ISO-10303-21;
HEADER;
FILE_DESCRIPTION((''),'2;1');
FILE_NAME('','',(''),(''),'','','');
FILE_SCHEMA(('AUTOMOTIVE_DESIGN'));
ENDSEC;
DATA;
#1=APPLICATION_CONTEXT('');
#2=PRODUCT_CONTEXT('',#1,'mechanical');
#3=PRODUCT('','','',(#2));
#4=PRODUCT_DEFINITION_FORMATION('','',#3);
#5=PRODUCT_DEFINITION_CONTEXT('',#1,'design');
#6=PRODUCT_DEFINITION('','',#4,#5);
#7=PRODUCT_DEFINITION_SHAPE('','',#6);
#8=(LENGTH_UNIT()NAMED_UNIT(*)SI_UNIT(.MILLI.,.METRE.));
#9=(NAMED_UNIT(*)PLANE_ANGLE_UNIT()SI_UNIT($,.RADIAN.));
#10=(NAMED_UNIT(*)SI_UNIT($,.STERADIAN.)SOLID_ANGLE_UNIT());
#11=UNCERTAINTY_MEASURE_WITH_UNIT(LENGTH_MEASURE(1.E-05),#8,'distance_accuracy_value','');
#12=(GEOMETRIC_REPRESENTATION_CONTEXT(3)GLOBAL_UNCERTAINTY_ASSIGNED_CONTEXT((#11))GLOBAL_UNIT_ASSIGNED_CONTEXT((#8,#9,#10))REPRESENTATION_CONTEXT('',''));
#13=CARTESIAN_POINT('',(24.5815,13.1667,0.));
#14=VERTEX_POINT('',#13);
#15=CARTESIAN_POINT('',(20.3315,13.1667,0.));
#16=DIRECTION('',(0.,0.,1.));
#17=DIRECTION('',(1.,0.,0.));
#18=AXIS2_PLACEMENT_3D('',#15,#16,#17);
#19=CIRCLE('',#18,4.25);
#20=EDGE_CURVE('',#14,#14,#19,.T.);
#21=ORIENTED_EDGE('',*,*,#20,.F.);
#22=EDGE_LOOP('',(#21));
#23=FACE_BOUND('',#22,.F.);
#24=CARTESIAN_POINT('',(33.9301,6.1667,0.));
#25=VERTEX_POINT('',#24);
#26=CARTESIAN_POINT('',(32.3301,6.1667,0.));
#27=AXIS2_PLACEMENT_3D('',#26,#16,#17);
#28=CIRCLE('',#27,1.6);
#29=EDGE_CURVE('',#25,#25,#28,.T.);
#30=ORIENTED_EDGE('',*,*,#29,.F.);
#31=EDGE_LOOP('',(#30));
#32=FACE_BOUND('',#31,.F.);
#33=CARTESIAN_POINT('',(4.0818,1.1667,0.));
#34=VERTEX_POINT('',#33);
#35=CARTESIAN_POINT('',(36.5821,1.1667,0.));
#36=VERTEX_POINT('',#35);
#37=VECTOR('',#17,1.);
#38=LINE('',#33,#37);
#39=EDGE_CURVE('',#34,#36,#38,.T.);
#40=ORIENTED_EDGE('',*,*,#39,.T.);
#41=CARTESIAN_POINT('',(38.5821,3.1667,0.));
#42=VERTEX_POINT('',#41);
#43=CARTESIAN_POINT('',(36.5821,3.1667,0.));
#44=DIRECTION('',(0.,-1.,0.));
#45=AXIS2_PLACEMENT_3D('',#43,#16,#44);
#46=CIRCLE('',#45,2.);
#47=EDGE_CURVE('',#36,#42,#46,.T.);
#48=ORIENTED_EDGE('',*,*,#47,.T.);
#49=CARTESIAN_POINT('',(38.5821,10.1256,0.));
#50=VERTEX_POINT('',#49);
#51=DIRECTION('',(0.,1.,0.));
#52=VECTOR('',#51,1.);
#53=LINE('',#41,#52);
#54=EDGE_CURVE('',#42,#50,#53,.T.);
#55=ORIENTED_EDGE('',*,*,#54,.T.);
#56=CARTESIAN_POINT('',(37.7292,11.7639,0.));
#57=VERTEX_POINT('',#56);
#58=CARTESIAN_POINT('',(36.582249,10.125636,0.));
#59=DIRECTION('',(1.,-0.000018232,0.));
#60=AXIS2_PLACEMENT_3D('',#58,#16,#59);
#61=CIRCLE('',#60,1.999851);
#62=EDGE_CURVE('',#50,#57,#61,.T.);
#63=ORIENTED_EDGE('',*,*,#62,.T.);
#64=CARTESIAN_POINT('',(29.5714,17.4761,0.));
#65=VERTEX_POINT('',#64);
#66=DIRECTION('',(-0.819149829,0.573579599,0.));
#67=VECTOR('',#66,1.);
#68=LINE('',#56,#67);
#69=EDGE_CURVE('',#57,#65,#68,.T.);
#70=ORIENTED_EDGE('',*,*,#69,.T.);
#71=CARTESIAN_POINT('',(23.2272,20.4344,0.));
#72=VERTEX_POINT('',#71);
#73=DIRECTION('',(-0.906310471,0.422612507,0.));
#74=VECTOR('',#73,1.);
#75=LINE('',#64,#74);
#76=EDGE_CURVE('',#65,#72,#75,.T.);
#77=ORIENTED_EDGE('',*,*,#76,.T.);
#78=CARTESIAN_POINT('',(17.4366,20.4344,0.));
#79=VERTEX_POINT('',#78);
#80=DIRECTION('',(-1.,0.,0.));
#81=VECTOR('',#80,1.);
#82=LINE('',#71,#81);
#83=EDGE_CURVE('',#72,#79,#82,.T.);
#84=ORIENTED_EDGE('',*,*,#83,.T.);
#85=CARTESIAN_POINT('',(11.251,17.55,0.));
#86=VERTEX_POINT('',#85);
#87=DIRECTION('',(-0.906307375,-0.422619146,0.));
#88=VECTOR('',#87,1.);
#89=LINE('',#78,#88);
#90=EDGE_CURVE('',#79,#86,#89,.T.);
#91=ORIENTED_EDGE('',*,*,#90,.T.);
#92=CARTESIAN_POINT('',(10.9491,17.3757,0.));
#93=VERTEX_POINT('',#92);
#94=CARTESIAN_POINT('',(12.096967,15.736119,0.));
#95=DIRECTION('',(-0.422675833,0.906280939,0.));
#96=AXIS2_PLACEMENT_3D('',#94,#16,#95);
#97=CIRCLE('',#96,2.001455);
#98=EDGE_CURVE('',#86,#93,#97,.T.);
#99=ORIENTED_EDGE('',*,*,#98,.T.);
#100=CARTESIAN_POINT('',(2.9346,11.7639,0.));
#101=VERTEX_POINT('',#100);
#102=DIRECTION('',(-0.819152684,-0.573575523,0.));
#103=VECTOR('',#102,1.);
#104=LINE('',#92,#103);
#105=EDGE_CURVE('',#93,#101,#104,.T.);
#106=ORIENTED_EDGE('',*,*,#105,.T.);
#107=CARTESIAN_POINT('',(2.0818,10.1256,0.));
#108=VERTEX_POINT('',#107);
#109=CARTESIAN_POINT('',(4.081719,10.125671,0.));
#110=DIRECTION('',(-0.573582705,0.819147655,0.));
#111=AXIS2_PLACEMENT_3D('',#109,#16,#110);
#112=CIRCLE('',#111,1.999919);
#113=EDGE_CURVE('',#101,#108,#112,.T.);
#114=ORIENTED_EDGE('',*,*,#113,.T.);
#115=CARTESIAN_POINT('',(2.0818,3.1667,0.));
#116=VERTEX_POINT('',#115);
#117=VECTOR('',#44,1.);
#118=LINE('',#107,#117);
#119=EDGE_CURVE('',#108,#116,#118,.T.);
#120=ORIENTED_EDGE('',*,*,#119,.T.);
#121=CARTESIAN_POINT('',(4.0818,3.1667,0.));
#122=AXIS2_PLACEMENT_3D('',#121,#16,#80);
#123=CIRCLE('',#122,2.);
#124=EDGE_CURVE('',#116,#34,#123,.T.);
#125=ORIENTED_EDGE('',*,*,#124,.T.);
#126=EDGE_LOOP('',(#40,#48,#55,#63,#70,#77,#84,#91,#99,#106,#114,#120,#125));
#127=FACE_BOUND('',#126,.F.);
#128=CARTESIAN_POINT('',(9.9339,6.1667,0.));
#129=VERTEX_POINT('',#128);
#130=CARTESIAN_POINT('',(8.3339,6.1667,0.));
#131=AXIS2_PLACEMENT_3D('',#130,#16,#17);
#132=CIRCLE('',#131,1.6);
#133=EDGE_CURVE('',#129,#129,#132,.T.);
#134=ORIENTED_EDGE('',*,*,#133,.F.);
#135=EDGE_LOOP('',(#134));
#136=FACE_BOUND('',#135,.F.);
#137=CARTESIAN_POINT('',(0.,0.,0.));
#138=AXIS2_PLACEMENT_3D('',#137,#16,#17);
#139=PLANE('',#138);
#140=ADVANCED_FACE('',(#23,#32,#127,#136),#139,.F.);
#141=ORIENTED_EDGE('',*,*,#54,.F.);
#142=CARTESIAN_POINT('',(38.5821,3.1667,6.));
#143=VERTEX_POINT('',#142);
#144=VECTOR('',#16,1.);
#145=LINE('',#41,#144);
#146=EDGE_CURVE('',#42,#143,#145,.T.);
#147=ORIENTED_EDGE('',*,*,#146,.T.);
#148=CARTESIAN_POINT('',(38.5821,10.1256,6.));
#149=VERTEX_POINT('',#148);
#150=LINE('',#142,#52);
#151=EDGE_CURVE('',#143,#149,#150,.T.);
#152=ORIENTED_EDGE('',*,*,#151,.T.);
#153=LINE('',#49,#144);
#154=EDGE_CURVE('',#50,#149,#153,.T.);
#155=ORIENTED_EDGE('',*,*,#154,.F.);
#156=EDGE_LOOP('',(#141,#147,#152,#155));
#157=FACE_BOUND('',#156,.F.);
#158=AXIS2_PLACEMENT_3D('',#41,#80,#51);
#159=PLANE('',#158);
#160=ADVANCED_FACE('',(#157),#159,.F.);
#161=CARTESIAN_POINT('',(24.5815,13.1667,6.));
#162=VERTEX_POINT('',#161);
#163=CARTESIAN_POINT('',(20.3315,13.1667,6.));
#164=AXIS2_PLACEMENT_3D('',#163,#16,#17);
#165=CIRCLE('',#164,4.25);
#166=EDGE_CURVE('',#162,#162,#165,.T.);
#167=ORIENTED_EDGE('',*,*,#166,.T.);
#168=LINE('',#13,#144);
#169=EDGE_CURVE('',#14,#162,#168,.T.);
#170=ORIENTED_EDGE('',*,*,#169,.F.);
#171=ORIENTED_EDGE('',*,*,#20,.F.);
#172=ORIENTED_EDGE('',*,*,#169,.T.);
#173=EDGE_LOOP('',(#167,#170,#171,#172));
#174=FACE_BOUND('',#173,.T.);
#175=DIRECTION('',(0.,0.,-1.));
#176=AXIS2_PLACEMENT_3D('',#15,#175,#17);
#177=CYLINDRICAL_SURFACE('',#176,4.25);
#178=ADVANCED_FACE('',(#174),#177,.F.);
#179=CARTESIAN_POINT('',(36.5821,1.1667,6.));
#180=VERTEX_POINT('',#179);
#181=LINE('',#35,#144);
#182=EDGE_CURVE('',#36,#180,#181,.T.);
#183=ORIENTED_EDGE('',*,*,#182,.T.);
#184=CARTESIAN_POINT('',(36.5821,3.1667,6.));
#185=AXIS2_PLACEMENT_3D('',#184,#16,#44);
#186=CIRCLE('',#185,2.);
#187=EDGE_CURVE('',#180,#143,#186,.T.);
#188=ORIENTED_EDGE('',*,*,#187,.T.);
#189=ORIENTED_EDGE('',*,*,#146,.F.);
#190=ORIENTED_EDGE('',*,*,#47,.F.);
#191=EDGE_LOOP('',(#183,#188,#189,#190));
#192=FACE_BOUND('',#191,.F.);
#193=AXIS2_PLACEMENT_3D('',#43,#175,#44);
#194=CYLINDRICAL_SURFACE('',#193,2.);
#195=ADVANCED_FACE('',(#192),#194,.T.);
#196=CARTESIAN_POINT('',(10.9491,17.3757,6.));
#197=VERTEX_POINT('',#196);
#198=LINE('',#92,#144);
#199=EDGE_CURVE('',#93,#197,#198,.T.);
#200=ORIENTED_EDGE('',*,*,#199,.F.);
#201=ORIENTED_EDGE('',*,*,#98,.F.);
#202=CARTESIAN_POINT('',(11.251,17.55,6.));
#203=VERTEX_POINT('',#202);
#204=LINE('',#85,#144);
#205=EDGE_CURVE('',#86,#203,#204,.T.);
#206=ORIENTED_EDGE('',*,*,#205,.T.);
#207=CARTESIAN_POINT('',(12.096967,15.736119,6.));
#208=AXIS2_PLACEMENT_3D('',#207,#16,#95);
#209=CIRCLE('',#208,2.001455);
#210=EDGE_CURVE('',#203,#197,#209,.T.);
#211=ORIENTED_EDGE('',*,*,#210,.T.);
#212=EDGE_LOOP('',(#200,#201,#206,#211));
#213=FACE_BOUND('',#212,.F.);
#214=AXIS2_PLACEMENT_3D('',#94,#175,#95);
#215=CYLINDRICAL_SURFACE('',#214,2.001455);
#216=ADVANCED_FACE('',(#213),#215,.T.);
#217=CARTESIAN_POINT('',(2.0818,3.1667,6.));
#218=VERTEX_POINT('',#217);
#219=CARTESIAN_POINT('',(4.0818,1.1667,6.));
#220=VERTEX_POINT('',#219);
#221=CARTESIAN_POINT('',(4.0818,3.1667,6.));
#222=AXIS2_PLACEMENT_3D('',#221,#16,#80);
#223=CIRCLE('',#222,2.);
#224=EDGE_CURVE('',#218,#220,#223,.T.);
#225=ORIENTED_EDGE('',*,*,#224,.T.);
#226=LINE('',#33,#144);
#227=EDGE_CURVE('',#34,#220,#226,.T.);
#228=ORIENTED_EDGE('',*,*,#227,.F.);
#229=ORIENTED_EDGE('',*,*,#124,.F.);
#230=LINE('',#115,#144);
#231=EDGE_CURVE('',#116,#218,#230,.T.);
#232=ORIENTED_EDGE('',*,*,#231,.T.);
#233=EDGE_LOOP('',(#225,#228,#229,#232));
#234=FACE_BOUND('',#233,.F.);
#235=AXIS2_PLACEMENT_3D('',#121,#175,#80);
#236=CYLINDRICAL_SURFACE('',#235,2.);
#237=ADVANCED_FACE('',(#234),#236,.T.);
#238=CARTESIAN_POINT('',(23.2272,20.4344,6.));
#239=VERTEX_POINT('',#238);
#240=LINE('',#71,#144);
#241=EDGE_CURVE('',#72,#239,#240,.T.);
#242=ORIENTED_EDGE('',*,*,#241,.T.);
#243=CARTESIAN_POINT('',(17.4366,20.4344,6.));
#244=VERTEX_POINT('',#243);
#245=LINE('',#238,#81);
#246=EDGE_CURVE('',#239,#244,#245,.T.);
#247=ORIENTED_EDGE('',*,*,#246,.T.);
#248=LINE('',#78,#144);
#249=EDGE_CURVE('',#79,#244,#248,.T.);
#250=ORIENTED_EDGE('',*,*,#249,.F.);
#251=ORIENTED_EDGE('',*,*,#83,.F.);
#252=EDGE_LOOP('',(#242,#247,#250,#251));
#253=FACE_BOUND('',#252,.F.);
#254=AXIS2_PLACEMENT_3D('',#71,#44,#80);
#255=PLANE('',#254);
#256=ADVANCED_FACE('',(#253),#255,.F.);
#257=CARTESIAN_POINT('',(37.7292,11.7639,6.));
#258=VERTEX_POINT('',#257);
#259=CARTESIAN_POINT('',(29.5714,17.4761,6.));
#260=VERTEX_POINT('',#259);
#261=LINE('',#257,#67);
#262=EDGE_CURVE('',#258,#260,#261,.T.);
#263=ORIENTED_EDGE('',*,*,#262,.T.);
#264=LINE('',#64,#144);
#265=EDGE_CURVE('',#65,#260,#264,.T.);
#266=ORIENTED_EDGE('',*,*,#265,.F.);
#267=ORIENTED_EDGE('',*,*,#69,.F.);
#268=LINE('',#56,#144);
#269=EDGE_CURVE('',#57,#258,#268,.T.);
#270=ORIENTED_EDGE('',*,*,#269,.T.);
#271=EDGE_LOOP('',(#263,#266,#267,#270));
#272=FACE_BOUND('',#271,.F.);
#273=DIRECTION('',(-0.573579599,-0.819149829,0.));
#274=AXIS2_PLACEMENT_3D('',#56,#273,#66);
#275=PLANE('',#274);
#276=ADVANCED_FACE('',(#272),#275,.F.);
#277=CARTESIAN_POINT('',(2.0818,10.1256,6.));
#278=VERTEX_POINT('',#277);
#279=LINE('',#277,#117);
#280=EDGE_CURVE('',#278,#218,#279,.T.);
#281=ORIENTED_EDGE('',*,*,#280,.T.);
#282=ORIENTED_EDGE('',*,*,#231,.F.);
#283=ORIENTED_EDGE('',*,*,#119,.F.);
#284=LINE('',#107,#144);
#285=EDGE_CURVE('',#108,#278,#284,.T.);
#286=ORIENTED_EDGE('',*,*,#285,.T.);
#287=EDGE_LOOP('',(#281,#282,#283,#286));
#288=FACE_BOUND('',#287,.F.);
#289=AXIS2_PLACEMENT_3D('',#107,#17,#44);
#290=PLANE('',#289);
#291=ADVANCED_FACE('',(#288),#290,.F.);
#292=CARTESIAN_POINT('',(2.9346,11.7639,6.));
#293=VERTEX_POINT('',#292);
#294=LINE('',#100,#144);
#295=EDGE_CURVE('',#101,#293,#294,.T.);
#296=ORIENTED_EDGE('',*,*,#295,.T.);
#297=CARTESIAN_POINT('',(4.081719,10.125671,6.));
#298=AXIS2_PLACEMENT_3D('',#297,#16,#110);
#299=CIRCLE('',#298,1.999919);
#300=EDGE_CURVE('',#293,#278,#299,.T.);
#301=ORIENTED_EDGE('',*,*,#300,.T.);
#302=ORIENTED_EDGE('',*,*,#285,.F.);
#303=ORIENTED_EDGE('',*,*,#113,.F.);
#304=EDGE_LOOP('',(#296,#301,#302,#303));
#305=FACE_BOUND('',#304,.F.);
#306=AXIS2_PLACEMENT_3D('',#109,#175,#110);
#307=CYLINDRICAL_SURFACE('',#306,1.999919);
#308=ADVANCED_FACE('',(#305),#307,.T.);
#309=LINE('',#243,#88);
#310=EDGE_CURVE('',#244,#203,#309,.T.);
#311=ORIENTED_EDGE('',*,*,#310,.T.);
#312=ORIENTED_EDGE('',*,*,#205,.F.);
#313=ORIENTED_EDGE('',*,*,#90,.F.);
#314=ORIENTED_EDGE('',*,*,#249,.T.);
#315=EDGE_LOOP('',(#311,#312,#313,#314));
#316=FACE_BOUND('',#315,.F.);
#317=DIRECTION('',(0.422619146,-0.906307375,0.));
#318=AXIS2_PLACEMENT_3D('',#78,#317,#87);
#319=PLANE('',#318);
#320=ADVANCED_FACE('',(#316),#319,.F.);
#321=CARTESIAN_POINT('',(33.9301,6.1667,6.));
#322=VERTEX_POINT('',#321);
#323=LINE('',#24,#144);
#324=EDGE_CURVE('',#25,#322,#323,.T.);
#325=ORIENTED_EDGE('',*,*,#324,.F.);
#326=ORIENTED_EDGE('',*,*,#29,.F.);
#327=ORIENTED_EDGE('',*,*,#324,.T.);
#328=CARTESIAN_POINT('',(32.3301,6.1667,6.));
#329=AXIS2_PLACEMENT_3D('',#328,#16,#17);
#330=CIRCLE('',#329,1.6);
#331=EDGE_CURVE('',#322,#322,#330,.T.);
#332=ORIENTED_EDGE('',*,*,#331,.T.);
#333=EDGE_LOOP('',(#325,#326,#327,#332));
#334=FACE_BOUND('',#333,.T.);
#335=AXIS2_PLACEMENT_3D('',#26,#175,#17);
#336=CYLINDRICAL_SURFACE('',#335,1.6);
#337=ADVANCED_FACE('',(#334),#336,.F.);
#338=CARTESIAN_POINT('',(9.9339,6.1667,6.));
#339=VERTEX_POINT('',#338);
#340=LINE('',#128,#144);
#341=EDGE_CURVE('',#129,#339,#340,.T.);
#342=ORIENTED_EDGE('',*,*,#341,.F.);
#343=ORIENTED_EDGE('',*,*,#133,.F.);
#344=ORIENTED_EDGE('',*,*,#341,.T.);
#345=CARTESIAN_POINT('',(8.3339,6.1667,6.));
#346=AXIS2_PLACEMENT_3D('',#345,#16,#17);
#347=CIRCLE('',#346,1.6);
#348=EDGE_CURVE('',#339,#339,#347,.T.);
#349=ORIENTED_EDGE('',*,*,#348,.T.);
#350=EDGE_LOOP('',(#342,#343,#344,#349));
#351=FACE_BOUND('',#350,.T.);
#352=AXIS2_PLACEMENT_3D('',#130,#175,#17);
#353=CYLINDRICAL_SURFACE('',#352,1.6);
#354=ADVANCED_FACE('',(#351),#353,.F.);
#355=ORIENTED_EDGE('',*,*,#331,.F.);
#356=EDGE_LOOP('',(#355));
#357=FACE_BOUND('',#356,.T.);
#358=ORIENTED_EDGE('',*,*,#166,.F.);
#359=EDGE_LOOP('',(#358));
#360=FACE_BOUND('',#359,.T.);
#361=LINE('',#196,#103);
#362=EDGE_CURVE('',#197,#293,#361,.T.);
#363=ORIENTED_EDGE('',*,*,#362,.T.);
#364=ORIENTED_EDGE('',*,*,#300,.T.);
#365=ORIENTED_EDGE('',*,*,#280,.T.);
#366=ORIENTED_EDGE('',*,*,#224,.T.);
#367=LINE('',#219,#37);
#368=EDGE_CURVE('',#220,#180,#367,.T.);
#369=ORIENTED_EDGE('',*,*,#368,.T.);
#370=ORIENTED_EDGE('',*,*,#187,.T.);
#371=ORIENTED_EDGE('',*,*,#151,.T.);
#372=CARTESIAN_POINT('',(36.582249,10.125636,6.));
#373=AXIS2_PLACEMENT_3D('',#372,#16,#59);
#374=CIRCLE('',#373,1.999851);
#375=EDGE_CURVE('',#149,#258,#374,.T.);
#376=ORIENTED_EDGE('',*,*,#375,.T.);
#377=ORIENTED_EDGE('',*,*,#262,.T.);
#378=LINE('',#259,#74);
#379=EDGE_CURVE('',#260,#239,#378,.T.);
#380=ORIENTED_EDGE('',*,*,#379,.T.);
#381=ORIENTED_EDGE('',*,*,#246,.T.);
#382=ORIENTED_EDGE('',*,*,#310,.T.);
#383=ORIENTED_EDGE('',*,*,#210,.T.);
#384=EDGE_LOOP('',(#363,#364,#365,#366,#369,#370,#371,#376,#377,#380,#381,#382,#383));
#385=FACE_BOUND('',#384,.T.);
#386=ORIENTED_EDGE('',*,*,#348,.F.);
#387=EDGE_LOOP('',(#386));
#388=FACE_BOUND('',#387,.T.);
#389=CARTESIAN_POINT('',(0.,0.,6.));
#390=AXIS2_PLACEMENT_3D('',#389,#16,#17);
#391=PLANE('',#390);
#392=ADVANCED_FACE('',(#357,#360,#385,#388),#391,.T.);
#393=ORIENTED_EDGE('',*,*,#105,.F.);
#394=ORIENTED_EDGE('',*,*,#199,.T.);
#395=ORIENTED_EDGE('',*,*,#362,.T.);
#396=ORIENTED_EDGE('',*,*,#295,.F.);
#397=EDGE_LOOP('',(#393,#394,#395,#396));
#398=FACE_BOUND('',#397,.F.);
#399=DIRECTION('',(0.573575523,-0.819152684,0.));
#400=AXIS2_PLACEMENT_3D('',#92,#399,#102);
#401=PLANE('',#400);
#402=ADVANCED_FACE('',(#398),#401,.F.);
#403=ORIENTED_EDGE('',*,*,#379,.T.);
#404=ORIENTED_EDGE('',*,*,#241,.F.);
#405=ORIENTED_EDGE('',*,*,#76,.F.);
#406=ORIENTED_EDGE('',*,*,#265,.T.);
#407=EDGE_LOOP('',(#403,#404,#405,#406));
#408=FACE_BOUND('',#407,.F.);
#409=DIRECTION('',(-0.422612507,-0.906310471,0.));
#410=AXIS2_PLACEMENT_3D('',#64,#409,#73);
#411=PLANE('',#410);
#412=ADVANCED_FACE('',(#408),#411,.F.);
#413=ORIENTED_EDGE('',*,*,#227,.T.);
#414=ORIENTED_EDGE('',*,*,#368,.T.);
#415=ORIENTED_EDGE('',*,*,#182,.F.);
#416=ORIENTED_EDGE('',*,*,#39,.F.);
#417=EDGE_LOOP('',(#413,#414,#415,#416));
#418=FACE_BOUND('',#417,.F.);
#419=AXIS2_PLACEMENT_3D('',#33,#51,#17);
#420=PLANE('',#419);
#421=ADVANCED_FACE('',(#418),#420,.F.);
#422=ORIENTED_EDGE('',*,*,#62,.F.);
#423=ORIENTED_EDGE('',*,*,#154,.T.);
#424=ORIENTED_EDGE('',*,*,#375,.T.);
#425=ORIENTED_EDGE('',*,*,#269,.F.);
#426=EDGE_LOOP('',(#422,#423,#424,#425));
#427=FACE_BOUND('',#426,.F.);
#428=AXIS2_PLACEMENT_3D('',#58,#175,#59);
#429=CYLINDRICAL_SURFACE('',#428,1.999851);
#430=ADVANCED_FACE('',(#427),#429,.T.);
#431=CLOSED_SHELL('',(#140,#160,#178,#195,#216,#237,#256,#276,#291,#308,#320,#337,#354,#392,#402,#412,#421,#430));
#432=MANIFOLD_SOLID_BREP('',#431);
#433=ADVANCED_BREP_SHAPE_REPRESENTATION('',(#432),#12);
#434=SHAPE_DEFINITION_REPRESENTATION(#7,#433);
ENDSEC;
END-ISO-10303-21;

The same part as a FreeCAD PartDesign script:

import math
import FreeCAD as App
import Part
import Sketcher
from FreeCAD import Vector
Q = App.Units.Quantity

doc = App.newDocument("Part")
params = doc.addObject("Spreadsheet::Sheet", "Params")
for row, (alias, value) in enumerate([
    ("sketch1_radius", "2 mm"),
    ("sketch1_diameter", "3.2 mm"),
    ("sketch1_diameter2", "8.5 mm"),
    ("sketch1_length", "7 mm"),
    ("pad1_length", "6 mm"),
], start=1):
    params.set(f"A{row}", alias)
    params.set(f"B{row}", "=" + value)
    params.setAlias(f"B{row}", alias)

body = doc.addObject("PartDesign::Body", "Body")

# Sketch on XY plane
sketch1 = body.newObject("Sketcher::SketchObject", "Sketch")
sketch1.AttachmentSupport = (doc.getObject("XY_Plane"), [""])
sketch1.MapMode = "FlatFace"
sketch1.addGeometry([
    Part.ArcOfCircle(Part.Circle(Vector(36.58, 10.13, 0), Vector(0, 0, 1), 2), math.radians(0), math.radians(55)),  # 0
    Part.LineSegment(Vector(37.73, 11.76, 0), Vector(29.57, 17.48, 0)),  # 1
    Part.LineSegment(Vector(29.57, 17.48, 0), Vector(23.23, 20.43, 0)),  # 2
    Part.LineSegment(Vector(23.23, 20.43, 0), Vector(17.44, 20.43, 0)),  # 3
    Part.LineSegment(Vector(17.44, 20.43, 0), Vector(11.25, 17.55, 0)),  # 4
    Part.ArcOfCircle(Part.Circle(Vector(12.1, 15.74, 0), Vector(0, 0, 1), 2), math.radians(115), math.radians(125)),  # 5
    Part.LineSegment(Vector(10.95, 17.38, 0), Vector(2.93, 11.76, 0)),  # 6
    Part.ArcOfCircle(Part.Circle(Vector(4.08, 10.13, 0), Vector(0, 0, 1), 2), math.radians(125), math.radians(180)),  # 7
    Part.LineSegment(Vector(2.08, 10.13, 0), Vector(2.08, 3.17, 0)),  # 8
    Part.ArcOfCircle(Part.Circle(Vector(4.08, 3.17, 0), Vector(0, 0, 1), 2), math.radians(180), math.radians(270)),  # 9
    Part.LineSegment(Vector(4.08, 1.17, 0), Vector(36.58, 1.17, 0)),  # 10
    Part.ArcOfCircle(Part.Circle(Vector(36.58, 3.17, 0), Vector(0, 0, 1), 2), math.radians(-90), math.radians(0)),  # 11
    Part.LineSegment(Vector(38.58, 3.17, 0), Vector(38.58, 10.13, 0)),  # 12
    Part.Circle(Vector(8.33, 6.17, 0), Vector(0, 0, 1), 1.6),  # 13
    Part.Circle(Vector(32.33, 6.17, 0), Vector(0, 0, 1), 1.6),  # 14
    Part.Circle(Vector(20.33, 13.17, 0), Vector(0, 0, 1), 4.25),  # 15
], False)
sketch1.addConstraint([
    Sketcher.Constraint("Tangent", 0, 2, 1, 1),
    Sketcher.Constraint("Coincident", 1, 2, 2, 1),
    Sketcher.Constraint("Coincident", 2, 2, 3, 1),
    Sketcher.Constraint("Coincident", 3, 2, 4, 1),
    Sketcher.Constraint("Tangent", 4, 2, 5, 1),
    Sketcher.Constraint("Tangent", 5, 2, 6, 1),
    Sketcher.Constraint("Tangent", 6, 2, 7, 1),
    Sketcher.Constraint("Tangent", 7, 2, 8, 1),
    Sketcher.Constraint("Tangent", 8, 2, 9, 1),
    Sketcher.Constraint("Tangent", 9, 2, 10, 1),
    Sketcher.Constraint("Tangent", 10, 2, 11, 1),
    Sketcher.Constraint("Tangent", 11, 2, 12, 1),
    Sketcher.Constraint("Tangent", 12, 2, 0, 1),
    Sketcher.Constraint("Horizontal", 3),
    Sketcher.Constraint("Vertical", 8),
    Sketcher.Constraint("Horizontal", 10),
    Sketcher.Constraint("Vertical", 12),
    Sketcher.Constraint("Equal", 0, 7),
    Sketcher.Constraint("Equal", 7, 9),
    Sketcher.Constraint("Equal", 9, 11),
    Sketcher.Constraint("Equal", 13, 14),
    Sketcher.Constraint("Horizontal", 0, 3, 7, 3),
    Sketcher.Constraint("Horizontal", 13, 3, 14, 3),
    Sketcher.Constraint("Horizontal", 0, 2, 6, 2),
    Sketcher.Constraint("Radius", 0, Q("2 mm")),
    Sketcher.Constraint("Diameter", 13, Q("3.2 mm")),
    Sketcher.Constraint("Diameter", 15, Q("8.5 mm")),
    Sketcher.Constraint("Angle", 1, Q("144.9998 deg")),
    Sketcher.Constraint("Angle", 2, Q("155.0004 deg")),
    Sketcher.Constraint("Angle", 4, Q("-155 deg")),
    Sketcher.Constraint("Distance", 2, Q("7 mm")),
    Sketcher.Constraint("DistanceY", 9, 3, 13, 3, Q("3 mm")),
    Sketcher.Constraint("DistanceY", 13, 3, 15, 3, Q("7 mm")),
    Sketcher.Constraint("Radius", 5, Q("2.0015 mm")),
    Sketcher.Constraint("DistanceY", 8, 2, 8, 1, Q("6.959 mm")),
    Sketcher.Constraint("DistanceX", -1, 1, 14, 3, Q("32.33 mm")),
    Sketcher.Constraint("DistanceY", -1, 1, 4, 2, Q("17.55 mm")),
    Sketcher.Constraint("DistanceX", 15, 3, 1, 2, Q("9.24 mm")),
    Sketcher.Constraint("DistanceY", 7, 3, 5, 2, Q("7.25 mm")),
    Sketcher.Constraint("Distance", 4, Q("6.825 mm")),
    Sketcher.Constraint("DistanceX", 3, 2, 3, 1, Q("5.7906 mm")),
    Sketcher.Constraint("DistanceX", -1, 1, 0, 3, Q("36.582 mm")),
    Sketcher.Constraint("DistanceX", -1, 1, 13, 3, Q("8.334 mm")),
])
sketch1.setExpression("Constraints[24]", "Params.sketch1_radius")
sketch1.setExpression("Constraints[25]", "Params.sketch1_diameter")
sketch1.setExpression("Constraints[26]", "Params.sketch1_diameter2")
sketch1.setExpression("Constraints[30]", "Params.sketch1_length")
pad1 = body.newObject("PartDesign::Pad", "Pad")
pad1.Profile = sketch1
pad1.setExpression("Length", "Params.pad1_length")

doc.recompute()
